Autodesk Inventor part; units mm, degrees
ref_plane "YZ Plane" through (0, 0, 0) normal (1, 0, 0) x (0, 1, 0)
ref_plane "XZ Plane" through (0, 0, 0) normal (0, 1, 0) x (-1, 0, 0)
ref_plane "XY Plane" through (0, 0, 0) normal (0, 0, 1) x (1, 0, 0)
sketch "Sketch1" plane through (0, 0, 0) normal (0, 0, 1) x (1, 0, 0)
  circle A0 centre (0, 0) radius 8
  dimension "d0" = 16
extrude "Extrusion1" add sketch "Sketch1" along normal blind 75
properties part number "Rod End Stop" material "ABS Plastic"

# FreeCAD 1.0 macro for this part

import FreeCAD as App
import Part
import Sketcher

doc = App.newDocument("Part")
params = doc.addObject("Spreadsheet::Sheet", "Params")
for row, (alias, value) in enumerate([
    ("sketch1_diameter", "16 mm"),
    ("pad1_length", "75 mm"),
], start=1):
    params.set(f"A{row}", alias)
    params.set(f"B{row}", "=" + value)
    params.setAlias(f"B{row}", alias)

body = doc.addObject("PartDesign::Body", "Body")

sketch1 = doc.addObject("Sketcher::SketchObject", "Sketch")
body.addObject(sketch1)
sketch1.AttachmentSupport = (doc.XY_Plane, [""])
sketch1.MapMode = "FlatFace"
sketch1.addGeometry(Part.Circle(App.Vector(0, 0, 0), App.Vector(0, 0, 1), 8), False)
sketch1.addConstraint(Sketcher.Constraint("Coincident", 0, 3, -1, 1))
sketch1.addConstraint(Sketcher.Constraint("Diameter", 0, 16.0))
sketch1.setExpression("Constraints[1]", "Params.sketch1_diameter")
pad1 = doc.addObject("PartDesign::Pad", "Pad")
body.addObject(pad1)
pad1.Profile = sketch1
pad1.setExpression("Length", "Params.pad1_length")

doc.recompute()
